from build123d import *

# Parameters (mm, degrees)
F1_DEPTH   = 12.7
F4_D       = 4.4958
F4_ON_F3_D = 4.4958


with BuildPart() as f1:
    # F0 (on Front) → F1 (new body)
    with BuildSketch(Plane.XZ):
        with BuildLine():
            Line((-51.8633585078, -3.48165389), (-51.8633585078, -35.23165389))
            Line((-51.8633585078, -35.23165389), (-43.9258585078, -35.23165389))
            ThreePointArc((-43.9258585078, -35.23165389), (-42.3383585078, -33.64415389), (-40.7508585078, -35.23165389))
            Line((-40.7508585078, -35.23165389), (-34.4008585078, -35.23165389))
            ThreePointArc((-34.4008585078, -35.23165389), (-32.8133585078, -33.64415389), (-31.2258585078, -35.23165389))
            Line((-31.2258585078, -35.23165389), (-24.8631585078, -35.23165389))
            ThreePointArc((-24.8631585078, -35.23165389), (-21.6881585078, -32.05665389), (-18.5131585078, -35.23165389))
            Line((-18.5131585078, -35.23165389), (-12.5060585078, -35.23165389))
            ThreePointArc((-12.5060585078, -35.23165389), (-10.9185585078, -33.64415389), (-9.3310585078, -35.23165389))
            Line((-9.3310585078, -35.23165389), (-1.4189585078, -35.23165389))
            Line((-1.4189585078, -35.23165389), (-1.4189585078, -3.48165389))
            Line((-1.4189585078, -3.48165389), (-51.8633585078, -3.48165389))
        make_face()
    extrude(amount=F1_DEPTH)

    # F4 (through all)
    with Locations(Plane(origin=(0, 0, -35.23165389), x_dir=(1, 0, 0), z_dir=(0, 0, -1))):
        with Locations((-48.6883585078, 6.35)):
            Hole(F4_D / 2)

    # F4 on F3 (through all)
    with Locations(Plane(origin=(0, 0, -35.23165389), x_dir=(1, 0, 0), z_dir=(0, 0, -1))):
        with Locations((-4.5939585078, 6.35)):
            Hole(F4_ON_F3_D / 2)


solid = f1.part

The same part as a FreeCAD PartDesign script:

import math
import FreeCAD as App
import Part
import Sketcher
Q = App.Units.Quantity

doc = App.newDocument("Part")
body = doc.addObject("PartDesign::Body", "Body")

# Sketch on XZ plane
sketch1 = body.newObject("Sketcher::SketchObject", "Sketch")
sketch1.AttachmentSupport = (doc.getObject("XZ_Plane"), [""])
sketch1.MapMode = "FlatFace"
sketch1.addGeometry([
    Part.LineSegment(App.Vector(-51.9, -3.5, 0), App.Vector(-51.9, -35.2, 0)),  # 0
    Part.LineSegment(App.Vector(-51.9, -35.2, 0), App.Vector(-43.9, -35.2, 0)),  # 1
    Part.ArcOfCircle(Part.Circle(App.Vector(-42.3, -35.2, 0), App.Vector(0, 0, 1), 1.6), math.radians(0), math.radians(180)),  # 2
    Part.LineSegment(App.Vector(-40.8, -35.2, 0), App.Vector(-34.4, -35.2, 0)),  # 3
    Part.ArcOfCircle(Part.Circle(App.Vector(-32.8, -35.2, 0), App.Vector(0, 0, 1), 1.6), math.radians(0), math.radians(180)),  # 4
    Part.LineSegment(App.Vector(-31.2, -35.2, 0), App.Vector(-24.9, -35.2, 0)),  # 5
    Part.ArcOfCircle(Part.Circle(App.Vector(-21.7, -35.2, 0), App.Vector(0, 0, 1), 3.2), math.radians(0), math.radians(180)),  # 6
    Part.LineSegment(App.Vector(-18.5, -35.2, 0), App.Vector(-12.5, -35.2, 0)),  # 7
    Part.ArcOfCircle(Part.Circle(App.Vector(-10.9, -35.2, 0), App.Vector(0, 0, 1), 1.6), math.radians(0), math.radians(180)),  # 8
    Part.LineSegment(App.Vector(-9.3, -35.2, 0), App.Vector(-1.4, -35.2, 0)),  # 9
    Part.LineSegment(App.Vector(-1.4, -35.2, 0), App.Vector(-1.4, -3.5, 0)),  # 10
    Part.LineSegment(App.Vector(-1.4, -3.5, 0), App.Vector(-51.9, -3.5, 0)),  # 11
], False)
sketch1.addConstraint([
    Sketcher.Constraint("Coincident", 0, 2, 1, 1),
    Sketcher.Constraint("Coincident", 1, 2, 2, 2),
    Sketcher.Constraint("Coincident", 2, 1, 3, 1),
    Sketcher.Constraint("Coincident", 3, 2, 4, 2),
    Sketcher.Constraint("Coincident", 4, 1, 5, 1),
    Sketcher.Constraint("Coincident", 5, 2, 6, 2),
    Sketcher.Constraint("Coincident", 6, 1, 7, 1),
    Sketcher.Constraint("Coincident", 7, 2, 8, 2),
    Sketcher.Constraint("Coincident", 8, 1, 9, 1),
    Sketcher.Constraint("Coincident", 9, 2, 10, 1),
    Sketcher.Constraint("Coincident", 10, 2, 11, 1),
    Sketcher.Constraint("Coincident", 11, 2, 0, 1),
    Sketcher.Constraint("Vertical", 0),
    Sketcher.Constraint("Horizontal", 1),
    Sketcher.Constraint("Horizontal", 3),
    Sketcher.Constraint("Horizontal", 5),
    Sketcher.Constraint("Horizontal", 7),
    Sketcher.Constraint("Horizontal", 9),
    Sketcher.Constraint("Vertical", 10),
    Sketcher.Constraint("Horizontal", 11),
    Sketcher.Constraint("Equal", 2, 4),
    Sketcher.Constraint("Equal", 4, 8),
    Sketcher.Constraint("Horizontal", 2, 3, 4, 3),
    Sketcher.Constraint("Horizontal", 4, 3, 6, 3),
    Sketcher.Constraint("Horizontal", 6, 3, 8, 3),
    Sketcher.Constraint("Horizontal", 8, 3, 0, 2),
    Sketcher.Constraint("Horizontal", 1, 2, 2, 1),
    Sketcher.Constraint("Horizontal", 3, 2, 4, 1),
    Sketcher.Constraint("Horizontal", 5, 2, 6, 1),
    Sketcher.Constraint("Horizontal", 7, 2, 8, 1),
    Sketcher.Constraint("Radius", 2, Q("0.0625 in")),
    Sketcher.Constraint("Radius", 6, Q("0.125 in")),
    Sketcher.Constraint("DistanceX", 3, 1, 3, 2, Q("0.25 in")),
    Sketcher.Constraint("DistanceY", 0, 2, 0, 1, Q("1.25 in")),
    Sketcher.Constraint("DistanceX", 1, 1, 1, 2, Q("0.3125 in")),
    Sketcher.Constraint("DistanceX", 11, 2, 11, 1, Q("1.986 in")),
    Sketcher.Constraint("DistanceX", 5, 1, 5, 2, Q("0.2505 in")),
    Sketcher.Constraint("DistanceX", 7, 1, 7, 2, Q("0.2365 in")),
    Sketcher.Constraint("DistanceX", 2, 3, -1, 1, Q("42.338359 mm")),
    Sketcher.Constraint("DistanceY", 2, 3, -1, 1, Q("35.231654 mm")),
])
pad1 = body.newObject("PartDesign::Pad", "Pad")
pad1.Profile = sketch1
pad1.Length = Q("0.5 in")

# Sketch on XY plane
sketch2 = body.newObject("Sketcher::SketchObject", "Sketch001")
sketch2.AttachmentSupport = (doc.getObject("XY_Plane"), [""])
sketch2.MapMode = "FlatFace"
sketch2.AttachmentOffset = App.Placement(App.Vector(0, 0, -35.231654), App.Rotation())
sketch2.addGeometry(Part.Circle(App.Vector(-48.7, -6.3, 0), App.Vector(0, 0, 1), 2.2), False)
sketch2.addConstraint([
    Sketcher.Constraint("Diameter", 0, Q("0.177 in")),
    Sketcher.Constraint("DistanceY", 0, 3, -1, 1, Q("0.25 in")),
    Sketcher.Constraint("DistanceX", 0, 3, -1, 1, Q("48.688359 mm")),
])
doc.recompute()
hole = body.newObject("PartDesign::Hole", "Hole")
hole.Profile = sketch2
hole.ThreadType = "None"
hole.Diameter = Q("0.177 in")
hole.DepthType = "ThroughAll"
hole.Reversed = True

# Sketch on XY plane
sketch3 = body.newObject("Sketcher::SketchObject", "Sketch002")
sketch3.AttachmentSupport = (doc.getObject("XY_Plane"), [""])
sketch3.MapMode = "FlatFace"
sketch3.AttachmentOffset = App.Placement(App.Vector(0, 0, -35.231654), App.Rotation())
sketch3.addGeometry(Part.Circle(App.Vector(-4.6, -6.3, 0), App.Vector(0, 0, 1), 2.2), False)
sketch3.addConstraint([
    Sketcher.Constraint("Diameter", 0, Q("0.177 in")),
    Sketcher.Constraint("DistanceY", 0, 3, -1, 1, Q("0.25 in")),
    Sketcher.Constraint("DistanceX", 0, 3, -1, 1, Q("4.593959 mm")),
])
doc.recompute()
hole2 = body.newObject("PartDesign::Hole", "Hole001")
hole2.Profile = sketch3
hole2.ThreadType = "None"
hole2.Diameter = Q("0.177 in")
hole2.DepthType = "ThroughAll"
hole2.Reversed = True

doc.recompute()
